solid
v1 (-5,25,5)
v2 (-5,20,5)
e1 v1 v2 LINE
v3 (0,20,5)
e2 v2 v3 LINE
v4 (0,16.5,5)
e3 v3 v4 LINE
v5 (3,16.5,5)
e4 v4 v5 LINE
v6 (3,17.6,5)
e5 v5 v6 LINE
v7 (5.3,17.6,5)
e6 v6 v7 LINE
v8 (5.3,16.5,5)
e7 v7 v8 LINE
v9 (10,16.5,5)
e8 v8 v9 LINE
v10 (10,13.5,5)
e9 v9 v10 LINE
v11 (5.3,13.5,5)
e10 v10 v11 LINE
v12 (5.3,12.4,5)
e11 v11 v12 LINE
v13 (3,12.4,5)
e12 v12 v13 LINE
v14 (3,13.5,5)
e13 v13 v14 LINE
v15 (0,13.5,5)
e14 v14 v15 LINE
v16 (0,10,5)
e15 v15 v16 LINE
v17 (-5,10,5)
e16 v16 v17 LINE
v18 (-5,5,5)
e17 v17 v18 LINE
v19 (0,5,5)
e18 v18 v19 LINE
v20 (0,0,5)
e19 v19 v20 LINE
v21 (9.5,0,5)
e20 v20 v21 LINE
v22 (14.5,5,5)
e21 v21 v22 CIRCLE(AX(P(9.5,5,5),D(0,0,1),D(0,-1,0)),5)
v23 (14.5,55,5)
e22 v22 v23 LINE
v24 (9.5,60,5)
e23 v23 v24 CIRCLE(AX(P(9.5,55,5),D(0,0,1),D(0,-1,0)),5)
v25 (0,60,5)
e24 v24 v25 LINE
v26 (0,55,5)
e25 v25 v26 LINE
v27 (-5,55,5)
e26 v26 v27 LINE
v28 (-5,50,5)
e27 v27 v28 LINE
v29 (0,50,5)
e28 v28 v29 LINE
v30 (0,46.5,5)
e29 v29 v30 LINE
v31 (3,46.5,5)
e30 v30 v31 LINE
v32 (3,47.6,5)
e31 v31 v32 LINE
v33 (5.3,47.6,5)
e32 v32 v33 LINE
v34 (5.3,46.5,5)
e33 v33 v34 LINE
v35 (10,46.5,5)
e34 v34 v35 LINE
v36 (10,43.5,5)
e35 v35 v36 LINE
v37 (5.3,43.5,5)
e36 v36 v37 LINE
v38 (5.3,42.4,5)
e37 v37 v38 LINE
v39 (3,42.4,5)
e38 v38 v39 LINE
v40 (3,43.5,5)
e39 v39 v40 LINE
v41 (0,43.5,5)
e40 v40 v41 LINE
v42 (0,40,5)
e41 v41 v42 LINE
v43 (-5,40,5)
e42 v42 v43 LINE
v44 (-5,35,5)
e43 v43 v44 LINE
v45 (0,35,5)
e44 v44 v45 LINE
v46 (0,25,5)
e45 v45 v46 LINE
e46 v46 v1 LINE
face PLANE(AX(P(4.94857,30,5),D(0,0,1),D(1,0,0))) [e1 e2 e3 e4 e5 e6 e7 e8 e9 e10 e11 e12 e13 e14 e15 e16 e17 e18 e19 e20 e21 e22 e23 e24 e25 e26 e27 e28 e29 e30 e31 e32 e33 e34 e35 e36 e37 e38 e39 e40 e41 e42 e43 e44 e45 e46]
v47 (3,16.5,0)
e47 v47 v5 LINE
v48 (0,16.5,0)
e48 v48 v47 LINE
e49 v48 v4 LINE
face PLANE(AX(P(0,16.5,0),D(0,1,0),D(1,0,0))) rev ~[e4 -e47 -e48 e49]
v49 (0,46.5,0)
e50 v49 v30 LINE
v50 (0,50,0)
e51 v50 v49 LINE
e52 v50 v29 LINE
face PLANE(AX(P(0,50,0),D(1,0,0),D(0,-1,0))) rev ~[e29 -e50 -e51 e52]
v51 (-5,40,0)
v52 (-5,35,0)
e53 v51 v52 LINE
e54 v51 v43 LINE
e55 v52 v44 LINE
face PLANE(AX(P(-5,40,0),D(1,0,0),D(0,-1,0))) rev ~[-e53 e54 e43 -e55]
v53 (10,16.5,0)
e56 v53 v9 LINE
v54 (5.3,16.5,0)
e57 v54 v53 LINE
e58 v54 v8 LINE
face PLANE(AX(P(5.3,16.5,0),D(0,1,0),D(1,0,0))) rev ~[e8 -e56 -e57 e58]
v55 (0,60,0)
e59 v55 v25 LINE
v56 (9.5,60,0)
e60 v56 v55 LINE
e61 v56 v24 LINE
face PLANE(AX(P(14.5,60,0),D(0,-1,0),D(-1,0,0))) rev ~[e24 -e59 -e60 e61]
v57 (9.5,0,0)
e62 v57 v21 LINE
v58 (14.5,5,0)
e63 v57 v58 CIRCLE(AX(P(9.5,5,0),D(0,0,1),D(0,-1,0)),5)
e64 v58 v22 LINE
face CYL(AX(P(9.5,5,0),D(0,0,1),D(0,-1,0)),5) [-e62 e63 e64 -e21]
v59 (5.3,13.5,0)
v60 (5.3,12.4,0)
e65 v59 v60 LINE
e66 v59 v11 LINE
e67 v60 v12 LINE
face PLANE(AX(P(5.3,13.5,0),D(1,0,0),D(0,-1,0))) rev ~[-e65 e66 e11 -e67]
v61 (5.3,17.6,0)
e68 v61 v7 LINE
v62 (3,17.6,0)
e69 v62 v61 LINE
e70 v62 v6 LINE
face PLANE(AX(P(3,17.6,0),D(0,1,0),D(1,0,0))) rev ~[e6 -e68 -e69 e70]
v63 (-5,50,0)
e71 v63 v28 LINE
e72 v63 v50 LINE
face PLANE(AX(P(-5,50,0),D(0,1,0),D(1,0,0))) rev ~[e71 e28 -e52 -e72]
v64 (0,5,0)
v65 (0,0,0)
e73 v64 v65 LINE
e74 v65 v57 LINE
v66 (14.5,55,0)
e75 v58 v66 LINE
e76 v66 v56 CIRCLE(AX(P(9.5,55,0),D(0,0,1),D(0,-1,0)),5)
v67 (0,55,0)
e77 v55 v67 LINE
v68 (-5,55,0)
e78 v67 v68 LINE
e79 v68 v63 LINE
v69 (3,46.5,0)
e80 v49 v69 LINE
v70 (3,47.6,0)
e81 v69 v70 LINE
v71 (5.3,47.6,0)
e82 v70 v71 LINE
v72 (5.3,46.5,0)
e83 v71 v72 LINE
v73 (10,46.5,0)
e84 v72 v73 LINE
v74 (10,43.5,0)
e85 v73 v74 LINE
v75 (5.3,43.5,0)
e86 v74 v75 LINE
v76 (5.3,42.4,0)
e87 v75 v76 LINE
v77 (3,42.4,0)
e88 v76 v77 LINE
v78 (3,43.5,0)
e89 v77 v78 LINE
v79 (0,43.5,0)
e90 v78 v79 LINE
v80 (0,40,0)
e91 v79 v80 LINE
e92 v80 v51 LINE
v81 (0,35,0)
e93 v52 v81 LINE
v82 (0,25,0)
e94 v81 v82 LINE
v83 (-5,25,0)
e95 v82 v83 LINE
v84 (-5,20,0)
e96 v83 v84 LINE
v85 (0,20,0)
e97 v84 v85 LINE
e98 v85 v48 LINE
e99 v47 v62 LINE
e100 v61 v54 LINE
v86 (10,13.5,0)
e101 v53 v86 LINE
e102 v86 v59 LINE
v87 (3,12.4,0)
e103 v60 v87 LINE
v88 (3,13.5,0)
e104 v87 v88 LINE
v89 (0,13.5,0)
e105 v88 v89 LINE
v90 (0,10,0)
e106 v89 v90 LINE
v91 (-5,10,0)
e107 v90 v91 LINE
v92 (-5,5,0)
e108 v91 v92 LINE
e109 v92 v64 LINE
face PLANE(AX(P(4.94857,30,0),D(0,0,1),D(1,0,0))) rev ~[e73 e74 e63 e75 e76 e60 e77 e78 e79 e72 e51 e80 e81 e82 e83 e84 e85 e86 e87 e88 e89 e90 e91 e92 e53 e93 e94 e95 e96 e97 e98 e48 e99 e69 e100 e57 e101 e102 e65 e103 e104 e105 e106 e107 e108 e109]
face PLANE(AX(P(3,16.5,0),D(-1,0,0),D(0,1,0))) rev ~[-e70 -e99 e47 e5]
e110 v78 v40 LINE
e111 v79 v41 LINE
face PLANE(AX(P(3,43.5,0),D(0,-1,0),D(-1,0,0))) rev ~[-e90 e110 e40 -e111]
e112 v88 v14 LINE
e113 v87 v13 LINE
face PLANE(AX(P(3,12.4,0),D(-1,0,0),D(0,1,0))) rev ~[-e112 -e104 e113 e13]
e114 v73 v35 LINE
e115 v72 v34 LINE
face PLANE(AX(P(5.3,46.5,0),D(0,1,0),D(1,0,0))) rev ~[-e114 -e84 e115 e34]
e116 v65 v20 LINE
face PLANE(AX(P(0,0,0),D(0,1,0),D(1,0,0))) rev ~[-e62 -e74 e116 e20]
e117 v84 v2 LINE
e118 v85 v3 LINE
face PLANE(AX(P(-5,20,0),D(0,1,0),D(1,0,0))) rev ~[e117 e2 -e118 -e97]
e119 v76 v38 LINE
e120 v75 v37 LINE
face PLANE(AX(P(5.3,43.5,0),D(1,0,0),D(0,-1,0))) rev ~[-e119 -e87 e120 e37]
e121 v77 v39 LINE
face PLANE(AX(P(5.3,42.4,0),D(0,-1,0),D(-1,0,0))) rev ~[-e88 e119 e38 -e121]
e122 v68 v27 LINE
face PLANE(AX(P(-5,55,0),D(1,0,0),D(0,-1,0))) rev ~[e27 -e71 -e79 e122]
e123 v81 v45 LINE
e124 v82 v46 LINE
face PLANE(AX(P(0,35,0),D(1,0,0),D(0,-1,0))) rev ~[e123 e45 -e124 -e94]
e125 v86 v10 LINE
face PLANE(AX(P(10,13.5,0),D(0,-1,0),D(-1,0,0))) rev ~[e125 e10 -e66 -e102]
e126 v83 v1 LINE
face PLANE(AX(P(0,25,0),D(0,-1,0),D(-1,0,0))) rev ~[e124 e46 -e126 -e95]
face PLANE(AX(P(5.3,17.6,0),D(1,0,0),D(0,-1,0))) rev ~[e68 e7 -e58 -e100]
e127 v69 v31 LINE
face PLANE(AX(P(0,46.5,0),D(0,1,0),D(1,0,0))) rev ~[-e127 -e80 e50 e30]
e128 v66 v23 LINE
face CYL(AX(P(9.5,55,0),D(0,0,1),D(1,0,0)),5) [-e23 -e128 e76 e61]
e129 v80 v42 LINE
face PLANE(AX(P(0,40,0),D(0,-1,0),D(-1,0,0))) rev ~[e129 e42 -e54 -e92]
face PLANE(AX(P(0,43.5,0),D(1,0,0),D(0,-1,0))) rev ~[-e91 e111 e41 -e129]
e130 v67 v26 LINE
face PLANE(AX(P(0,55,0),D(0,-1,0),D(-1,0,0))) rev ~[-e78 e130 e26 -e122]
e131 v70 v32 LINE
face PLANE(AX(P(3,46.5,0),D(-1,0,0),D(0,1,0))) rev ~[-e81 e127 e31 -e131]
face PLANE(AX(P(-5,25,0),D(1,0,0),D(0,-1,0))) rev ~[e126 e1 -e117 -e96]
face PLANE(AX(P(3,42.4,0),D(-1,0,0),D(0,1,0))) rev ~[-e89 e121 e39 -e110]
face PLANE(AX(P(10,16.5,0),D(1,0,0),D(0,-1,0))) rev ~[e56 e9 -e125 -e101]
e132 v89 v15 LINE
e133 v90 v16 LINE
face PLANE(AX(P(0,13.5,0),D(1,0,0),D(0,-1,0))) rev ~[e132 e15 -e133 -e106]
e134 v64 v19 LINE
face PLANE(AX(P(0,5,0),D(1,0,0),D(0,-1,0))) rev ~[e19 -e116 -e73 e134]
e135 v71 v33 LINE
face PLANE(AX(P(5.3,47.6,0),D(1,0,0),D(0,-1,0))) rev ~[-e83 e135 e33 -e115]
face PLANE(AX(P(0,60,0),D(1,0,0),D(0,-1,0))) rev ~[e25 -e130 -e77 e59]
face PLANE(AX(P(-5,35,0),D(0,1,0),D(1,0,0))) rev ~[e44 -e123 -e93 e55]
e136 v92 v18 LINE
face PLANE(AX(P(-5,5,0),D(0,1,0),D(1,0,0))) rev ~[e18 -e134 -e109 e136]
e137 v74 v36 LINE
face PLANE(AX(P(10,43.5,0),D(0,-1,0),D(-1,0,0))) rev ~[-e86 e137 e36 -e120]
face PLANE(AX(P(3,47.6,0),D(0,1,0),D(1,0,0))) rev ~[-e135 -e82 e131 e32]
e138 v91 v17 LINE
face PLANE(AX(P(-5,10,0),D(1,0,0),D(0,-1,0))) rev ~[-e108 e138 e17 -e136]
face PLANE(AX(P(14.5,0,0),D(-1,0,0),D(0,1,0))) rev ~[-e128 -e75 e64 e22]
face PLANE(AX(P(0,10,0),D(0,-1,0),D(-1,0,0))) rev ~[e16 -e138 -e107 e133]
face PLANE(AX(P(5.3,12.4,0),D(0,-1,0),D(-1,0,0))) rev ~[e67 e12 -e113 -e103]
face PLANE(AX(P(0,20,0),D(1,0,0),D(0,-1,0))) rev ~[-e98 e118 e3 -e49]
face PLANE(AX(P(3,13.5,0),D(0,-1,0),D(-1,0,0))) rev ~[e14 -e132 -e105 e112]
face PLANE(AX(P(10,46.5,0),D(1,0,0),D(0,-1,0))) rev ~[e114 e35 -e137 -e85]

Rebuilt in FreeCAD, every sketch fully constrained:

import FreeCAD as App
import Part
import Sketcher
from FreeCAD import Vector


def edges_at(feature, points):
    """Names of the edges that pass closest to the given points."""
    edges = feature.Shape.Edges
    near = lambda p: min(range(len(edges)), key=lambda i: edges[i].distToShape(Part.Vertex(*p))[0])
    return sorted({f"Edge{near(p) + 1}" for p in points})

doc = App.newDocument("Part")
body = doc.addObject("PartDesign::Body", "Body")

sketch1 = body.newObject("Sketcher::SketchObject", "Sketch")
sketch1.AttachmentSupport = (doc.getObject("XY_Plane"), [""])
sketch1.MapMode = "FlatFace"
sketch1.addGeometry([
    Part.LineSegment(Vector(0, 60, 0), Vector(0, 55, 0)),
    Part.LineSegment(Vector(0, 55, 0), Vector(-5, 55, 0)),
    Part.LineSegment(Vector(-5, 55, 0), Vector(-5, 50, 0)),
    Part.LineSegment(Vector(-5, 50, 0), Vector(0, 50, 0)),
    Part.LineSegment(Vector(0, 50, 0), Vector(0, 46.5, 0)),
    Part.LineSegment(Vector(0, 46.5, 0), Vector(3, 46.5, 0)),
    Part.LineSegment(Vector(3, 46.5, 0), Vector(3, 47.6, 0)),
    Part.LineSegment(Vector(3, 47.6, 0), Vector(5.3, 47.6, 0)),
    Part.LineSegment(Vector(5.3, 47.6, 0), Vector(5.3, 46.5, 0)),
    Part.LineSegment(Vector(5.3, 46.5, 0), Vector(10, 46.5, 0)),
    Part.LineSegment(Vector(10, 46.5, 0), Vector(10, 43.5, 0)),
    Part.LineSegment(Vector(10, 43.5, 0), Vector(5.3, 43.5, 0)),
    Part.LineSegment(Vector(5.3, 43.5, 0), Vector(5.3, 42.4, 0)),
    Part.LineSegment(Vector(5.3, 42.4, 0), Vector(3, 42.4, 0)),
    Part.LineSegment(Vector(3, 42.4, 0), Vector(3, 43.5, 0)),
    Part.LineSegment(Vector(3, 43.5, 0), Vector(0, 43.5, 0)),
    Part.LineSegment(Vector(0, 43.5, 0), Vector(0, 40, 0)),
    Part.LineSegment(Vector(0, 40, 0), Vector(-5, 40, 0)),
    Part.LineSegment(Vector(-5, 40, 0), Vector(-5, 35, 0)),
    Part.LineSegment(Vector(-5, 35, 0), Vector(0, 35, 0)),
    Part.LineSegment(Vector(0, 35, 0), Vector(0, 25, 0)),
    Part.LineSegment(Vector(0, 25, 0), Vector(-5, 25, 0)),
    Part.LineSegment(Vector(-5, 25, 0), Vector(-5, 20, 0)),
    Part.LineSegment(Vector(-5, 20, 0), Vector(0, 20, 0)),
    Part.LineSegment(Vector(0, 20, 0), Vector(0, 16.5, 0)),
    Part.LineSegment(Vector(0, 16.5, 0), Vector(3, 16.5, 0)),
    Part.LineSegment(Vector(3, 16.5, 0), Vector(3, 17.6, 0)),
    Part.LineSegment(Vector(3, 17.6, 0), Vector(5.3, 17.6, 0)),
    Part.LineSegment(Vector(5.3, 17.6, 0), Vector(5.3, 16.5, 0)),
    Part.LineSegment(Vector(5.3, 16.5, 0), Vector(10, 16.5, 0)),
    Part.LineSegment(Vector(10, 16.5, 0), Vector(10, 13.5, 0)),
    Part.LineSegment(Vector(10, 13.5, 0), Vector(5.3, 13.5, 0)),
    Part.LineSegment(Vector(5.3, 13.5, 0), Vector(5.3, 12.4, 0)),
    Part.LineSegment(Vector(5.3, 12.4, 0), Vector(3, 12.4, 0)),
    Part.LineSegment(Vector(3, 12.4, 0), Vector(3, 13.5, 0)),
    Part.LineSegment(Vector(3, 13.5, 0), Vector(0, 13.5, 0)),
    Part.LineSegment(Vector(0, 13.5, 0), Vector(0, 10, 0)),
    Part.LineSegment(Vector(0, 10, 0), Vector(-5, 10, 0)),
    Part.LineSegment(Vector(-5, 10, 0), Vector(-5, 5, 0)),
    Part.LineSegment(Vector(-5, 5, 0), Vector(0, 5, 0)),
    Part.LineSegment(Vector(0, 5, 0), Vector(0, 0, 0)),
    Part.LineSegment(Vector(0, 0, 0), Vector(14.5, 0, 0)),
    Part.LineSegment(Vector(14.5, 0, 0), Vector(14.5, 60, 0)),
    Part.LineSegment(Vector(14.5, 60, 0), Vector(0, 60, 0)),
], False)
sketch1.addConstraint([
    Sketcher.Constraint("Coincident", 0, 2, 1, 1),
    Sketcher.Constraint("Coincident", 1, 2, 2, 1),
    Sketcher.Constraint("Coincident", 2, 2, 3, 1),
    Sketcher.Constraint("Coincident", 3, 2, 4, 1),
    Sketcher.Constraint("Coincident", 4, 2, 5, 1),
    Sketcher.Constraint("Coincident", 5, 2, 6, 1),
    Sketcher.Constraint("Coincident", 6, 2, 7, 1),
    Sketcher.Constraint("Coincident", 7, 2, 8, 1),
    Sketcher.Constraint("Coincident", 8, 2, 9, 1),
    Sketcher.Constraint("Coincident", 9, 2, 10, 1),
    Sketcher.Constraint("Coincident", 10, 2, 11, 1),
    Sketcher.Constraint("Coincident", 11, 2, 12, 1),
    Sketcher.Constraint("Coincident", 12, 2, 13, 1),
    Sketcher.Constraint("Coincident", 13, 2, 14, 1),
    Sketcher.Constraint("Coincident", 14, 2, 15, 1),
    Sketcher.Constraint("Coincident", 15, 2, 16, 1),
    Sketcher.Constraint("Coincident", 16, 2, 17, 1),
    Sketcher.Constraint("Coincident", 17, 2, 18, 1),
    Sketcher.Constraint("Coincident", 18, 2, 19, 1),
    Sketcher.Constraint("Coincident", 19, 2, 20, 1),
    Sketcher.Constraint("Coincident", 20, 2, 21, 1),
    Sketcher.Constraint("Coincident", 21, 2, 22, 1),
    Sketcher.Constraint("Coincident", 22, 2, 23, 1),
    Sketcher.Constraint("Coincident", 23, 2, 24, 1),
    Sketcher.Constraint("Coincident", 24, 2, 25, 1),
    Sketcher.Constraint("Coincident", 25, 2, 26, 1),
    Sketcher.Constraint("Coincident", 26, 2, 27, 1),
    Sketcher.Constraint("Coincident", 27, 2, 28, 1),
    Sketcher.Constraint("Coincident", 28, 2, 29, 1),
    Sketcher.Constraint("Coincident", 29, 2, 30, 1),
    Sketcher.Constraint("Coincident", 30, 2, 31, 1),
    Sketcher.Constraint("Coincident", 31, 2, 32, 1),
    Sketcher.Constraint("Coincident", 32, 2, 33, 1),
    Sketcher.Constraint("Coincident", 33, 2, 34, 1),
    Sketcher.Constraint("Coincident", 34, 2, 35, 1),
    Sketcher.Constraint("Coincident", 35, 2, 36, 1),
    Sketcher.Constraint("Coincident", 36, 2, 37, 1),
    Sketcher.Constraint("Coincident", 37, 2, 38, 1),
    Sketcher.Constraint("Coincident", 38, 2, 39, 1),
    Sketcher.Constraint("Coincident", 39, 2, 40, 1),
    Sketcher.Constraint("Coincident", 40, 2, 41, 1),
    Sketcher.Constraint("Coincident", 41, 2, 42, 1),
    Sketcher.Constraint("Coincident", 42, 2, 43, 1),
    Sketcher.Constraint("Coincident", 43, 2, 0, 1),
    Sketcher.Constraint("Vertical", 0),
    Sketcher.Constraint("Horizontal", 1),
    Sketcher.Constraint("Vertical", 2),
    Sketcher.Constraint("Horizontal", 3),
    Sketcher.Constraint("Vertical", 4),
    Sketcher.Constraint("Horizontal", 5),
    Sketcher.Constraint("Vertical", 6),
    Sketcher.Constraint("Horizontal", 7),
    Sketcher.Constraint("Vertical", 8),
    Sketcher.Constraint("Horizontal", 9),
    Sketcher.Constraint("Vertical", 10),
    Sketcher.Constraint("Horizontal", 11),
    Sketcher.Constraint("Vertical", 12),
    Sketcher.Constraint("Horizontal", 13),
    Sketcher.Constraint("Vertical", 14),
    Sketcher.Constraint("Horizontal", 15),
    Sketcher.Constraint("Vertical", 16),
    Sketcher.Constraint("Horizontal", 17),
    Sketcher.Constraint("Vertical", 18),
    Sketcher.Constraint("Horizontal", 19),
    Sketcher.Constraint("Vertical", 20),
    Sketcher.Constraint("Horizontal", 21),
    Sketcher.Constraint("Vertical", 22),
    Sketcher.Constraint("Horizontal", 23),
    Sketcher.Constraint("Vertical", 24),
    Sketcher.Constraint("Horizontal", 25),
    Sketcher.Constraint("Vertical", 26),
    Sketcher.Constraint("Horizontal", 27),
    Sketcher.Constraint("Vertical", 28),
    Sketcher.Constraint("Horizontal", 29),
    Sketcher.Constraint("Vertical", 30),
    Sketcher.Constraint("Horizontal", 31),
    Sketcher.Constraint("Vertical", 32),
    Sketcher.Constraint("Horizontal", 33),
    Sketcher.Constraint("Vertical", 34),
    Sketcher.Constraint("Horizontal", 35),
    Sketcher.Constraint("Vertical", 36),
    Sketcher.Constraint("Horizontal", 37),
    Sketcher.Constraint("Vertical", 38),
    Sketcher.Constraint("Horizontal", 39),
    Sketcher.Constraint("Vertical", 40),
    Sketcher.Constraint("Horizontal", 41),
    Sketcher.Constraint("Vertical", 42),
    Sketcher.Constraint("Horizontal", 43),
    Sketcher.Constraint("Coincident", 40, 2, -1, 1),
    Sketcher.Constraint("PointOnObject", 0, 2, -2),
    Sketcher.Constraint("PointOnObject", 3, 2, -2),
    Sketcher.Constraint("PointOnObject", 15, 2, -2),
    Sketcher.Constraint("PointOnObject", 19, 2, -2),
    Sketcher.Constraint("PointOnObject", 23, 2, -2),
    Sketcher.Constraint("PointOnObject", 35, 2, -2),
    Sketcher.Constraint("Horizontal", 5, 2, 8, 2),
    Sketcher.Constraint("Horizontal", 11, 2, 14, 2),
    Sketcher.Constraint("Horizontal", 25, 2, 28, 2),
    Sketcher.Constraint("Horizontal", 31, 2, 34, 2),
    Sketcher.Constraint("Vertical", 8, 2, 11, 2),
    Sketcher.Constraint("Vertical", 6, 2, 13, 2),
    Sketcher.Constraint("Vertical", 2, 2, 17, 2),
    Sketcher.Constraint("Vertical", 18, 2, 21, 2),
    Sketcher.Constraint("Vertical", 14, 2, 25, 2),
    Sketcher.Constraint("Vertical", 12, 2, 27, 2),
    Sketcher.Constraint("Vertical", 10, 2, 29, 2),
    Sketcher.Constraint("Vertical", 28, 2, 31, 2),
    Sketcher.Constraint("Vertical", 26, 2, 33, 2),
    Sketcher.Constraint("Vertical", 22, 2, 37, 2),
    Sketcher.Constraint("Equal", 39, 0),
    Sketcher.Constraint("Equal", 0, 2),
    Sketcher.Constraint("Equal", 35, 10),
    Sketcher.Constraint("Equal", 8, 12),
    Sketcher.Constraint("Equal", 4, 16),
    Sketcher.Constraint("Equal", 2, 18),
    Sketcher.Constraint("Equal", 18, 22),
    Sketcher.Constraint("Equal", 16, 24),
    Sketcher.Constraint("Equal", 14, 26),
    Sketcher.Constraint("Equal", 10, 30),
    Sketcher.Constraint("Equal", 28, 32),
    Sketcher.Constraint("Equal", 24, 36),
    Sketcher.Constraint("Equal", 22, 38),
    Sketcher.Constraint("Equal", 38, 40),
    Sketcher.Constraint("DistanceX", 1, 2, 1, 1, 5.0),
    Sketcher.Constraint("DistanceX", 5, 1, 5, 2, 3.0),
    Sketcher.Constraint("DistanceY", 20, 2, 20, 1, 10.0),
    Sketcher.Constraint("DistanceY", 42, 1, 42, 2, 60.0),
    Sketcher.Constraint("DistanceX", 7, 1, 7, 2, 2.3),
    Sketcher.Constraint("DistanceX", 9, 1, 9, 2, 4.7),
    Sketcher.Constraint("DistanceX", 41, 1, 41, 2, 14.5),
    Sketcher.Constraint("DistanceY", 6, 1, 6, 2, 1.1),
])
pad1 = body.newObject("PartDesign::Pad", "Pad")
pad1.Profile = sketch1
pad1.Length = 5
doc.recompute()

fillet = body.newObject("PartDesign::Fillet", "Fillet")
fillet.Base = (pad1, edges_at(pad1, [(14.5, 60, 2.5), (14.5, 0, 2.5)]))
fillet.Radius = 5

doc.recompute()
